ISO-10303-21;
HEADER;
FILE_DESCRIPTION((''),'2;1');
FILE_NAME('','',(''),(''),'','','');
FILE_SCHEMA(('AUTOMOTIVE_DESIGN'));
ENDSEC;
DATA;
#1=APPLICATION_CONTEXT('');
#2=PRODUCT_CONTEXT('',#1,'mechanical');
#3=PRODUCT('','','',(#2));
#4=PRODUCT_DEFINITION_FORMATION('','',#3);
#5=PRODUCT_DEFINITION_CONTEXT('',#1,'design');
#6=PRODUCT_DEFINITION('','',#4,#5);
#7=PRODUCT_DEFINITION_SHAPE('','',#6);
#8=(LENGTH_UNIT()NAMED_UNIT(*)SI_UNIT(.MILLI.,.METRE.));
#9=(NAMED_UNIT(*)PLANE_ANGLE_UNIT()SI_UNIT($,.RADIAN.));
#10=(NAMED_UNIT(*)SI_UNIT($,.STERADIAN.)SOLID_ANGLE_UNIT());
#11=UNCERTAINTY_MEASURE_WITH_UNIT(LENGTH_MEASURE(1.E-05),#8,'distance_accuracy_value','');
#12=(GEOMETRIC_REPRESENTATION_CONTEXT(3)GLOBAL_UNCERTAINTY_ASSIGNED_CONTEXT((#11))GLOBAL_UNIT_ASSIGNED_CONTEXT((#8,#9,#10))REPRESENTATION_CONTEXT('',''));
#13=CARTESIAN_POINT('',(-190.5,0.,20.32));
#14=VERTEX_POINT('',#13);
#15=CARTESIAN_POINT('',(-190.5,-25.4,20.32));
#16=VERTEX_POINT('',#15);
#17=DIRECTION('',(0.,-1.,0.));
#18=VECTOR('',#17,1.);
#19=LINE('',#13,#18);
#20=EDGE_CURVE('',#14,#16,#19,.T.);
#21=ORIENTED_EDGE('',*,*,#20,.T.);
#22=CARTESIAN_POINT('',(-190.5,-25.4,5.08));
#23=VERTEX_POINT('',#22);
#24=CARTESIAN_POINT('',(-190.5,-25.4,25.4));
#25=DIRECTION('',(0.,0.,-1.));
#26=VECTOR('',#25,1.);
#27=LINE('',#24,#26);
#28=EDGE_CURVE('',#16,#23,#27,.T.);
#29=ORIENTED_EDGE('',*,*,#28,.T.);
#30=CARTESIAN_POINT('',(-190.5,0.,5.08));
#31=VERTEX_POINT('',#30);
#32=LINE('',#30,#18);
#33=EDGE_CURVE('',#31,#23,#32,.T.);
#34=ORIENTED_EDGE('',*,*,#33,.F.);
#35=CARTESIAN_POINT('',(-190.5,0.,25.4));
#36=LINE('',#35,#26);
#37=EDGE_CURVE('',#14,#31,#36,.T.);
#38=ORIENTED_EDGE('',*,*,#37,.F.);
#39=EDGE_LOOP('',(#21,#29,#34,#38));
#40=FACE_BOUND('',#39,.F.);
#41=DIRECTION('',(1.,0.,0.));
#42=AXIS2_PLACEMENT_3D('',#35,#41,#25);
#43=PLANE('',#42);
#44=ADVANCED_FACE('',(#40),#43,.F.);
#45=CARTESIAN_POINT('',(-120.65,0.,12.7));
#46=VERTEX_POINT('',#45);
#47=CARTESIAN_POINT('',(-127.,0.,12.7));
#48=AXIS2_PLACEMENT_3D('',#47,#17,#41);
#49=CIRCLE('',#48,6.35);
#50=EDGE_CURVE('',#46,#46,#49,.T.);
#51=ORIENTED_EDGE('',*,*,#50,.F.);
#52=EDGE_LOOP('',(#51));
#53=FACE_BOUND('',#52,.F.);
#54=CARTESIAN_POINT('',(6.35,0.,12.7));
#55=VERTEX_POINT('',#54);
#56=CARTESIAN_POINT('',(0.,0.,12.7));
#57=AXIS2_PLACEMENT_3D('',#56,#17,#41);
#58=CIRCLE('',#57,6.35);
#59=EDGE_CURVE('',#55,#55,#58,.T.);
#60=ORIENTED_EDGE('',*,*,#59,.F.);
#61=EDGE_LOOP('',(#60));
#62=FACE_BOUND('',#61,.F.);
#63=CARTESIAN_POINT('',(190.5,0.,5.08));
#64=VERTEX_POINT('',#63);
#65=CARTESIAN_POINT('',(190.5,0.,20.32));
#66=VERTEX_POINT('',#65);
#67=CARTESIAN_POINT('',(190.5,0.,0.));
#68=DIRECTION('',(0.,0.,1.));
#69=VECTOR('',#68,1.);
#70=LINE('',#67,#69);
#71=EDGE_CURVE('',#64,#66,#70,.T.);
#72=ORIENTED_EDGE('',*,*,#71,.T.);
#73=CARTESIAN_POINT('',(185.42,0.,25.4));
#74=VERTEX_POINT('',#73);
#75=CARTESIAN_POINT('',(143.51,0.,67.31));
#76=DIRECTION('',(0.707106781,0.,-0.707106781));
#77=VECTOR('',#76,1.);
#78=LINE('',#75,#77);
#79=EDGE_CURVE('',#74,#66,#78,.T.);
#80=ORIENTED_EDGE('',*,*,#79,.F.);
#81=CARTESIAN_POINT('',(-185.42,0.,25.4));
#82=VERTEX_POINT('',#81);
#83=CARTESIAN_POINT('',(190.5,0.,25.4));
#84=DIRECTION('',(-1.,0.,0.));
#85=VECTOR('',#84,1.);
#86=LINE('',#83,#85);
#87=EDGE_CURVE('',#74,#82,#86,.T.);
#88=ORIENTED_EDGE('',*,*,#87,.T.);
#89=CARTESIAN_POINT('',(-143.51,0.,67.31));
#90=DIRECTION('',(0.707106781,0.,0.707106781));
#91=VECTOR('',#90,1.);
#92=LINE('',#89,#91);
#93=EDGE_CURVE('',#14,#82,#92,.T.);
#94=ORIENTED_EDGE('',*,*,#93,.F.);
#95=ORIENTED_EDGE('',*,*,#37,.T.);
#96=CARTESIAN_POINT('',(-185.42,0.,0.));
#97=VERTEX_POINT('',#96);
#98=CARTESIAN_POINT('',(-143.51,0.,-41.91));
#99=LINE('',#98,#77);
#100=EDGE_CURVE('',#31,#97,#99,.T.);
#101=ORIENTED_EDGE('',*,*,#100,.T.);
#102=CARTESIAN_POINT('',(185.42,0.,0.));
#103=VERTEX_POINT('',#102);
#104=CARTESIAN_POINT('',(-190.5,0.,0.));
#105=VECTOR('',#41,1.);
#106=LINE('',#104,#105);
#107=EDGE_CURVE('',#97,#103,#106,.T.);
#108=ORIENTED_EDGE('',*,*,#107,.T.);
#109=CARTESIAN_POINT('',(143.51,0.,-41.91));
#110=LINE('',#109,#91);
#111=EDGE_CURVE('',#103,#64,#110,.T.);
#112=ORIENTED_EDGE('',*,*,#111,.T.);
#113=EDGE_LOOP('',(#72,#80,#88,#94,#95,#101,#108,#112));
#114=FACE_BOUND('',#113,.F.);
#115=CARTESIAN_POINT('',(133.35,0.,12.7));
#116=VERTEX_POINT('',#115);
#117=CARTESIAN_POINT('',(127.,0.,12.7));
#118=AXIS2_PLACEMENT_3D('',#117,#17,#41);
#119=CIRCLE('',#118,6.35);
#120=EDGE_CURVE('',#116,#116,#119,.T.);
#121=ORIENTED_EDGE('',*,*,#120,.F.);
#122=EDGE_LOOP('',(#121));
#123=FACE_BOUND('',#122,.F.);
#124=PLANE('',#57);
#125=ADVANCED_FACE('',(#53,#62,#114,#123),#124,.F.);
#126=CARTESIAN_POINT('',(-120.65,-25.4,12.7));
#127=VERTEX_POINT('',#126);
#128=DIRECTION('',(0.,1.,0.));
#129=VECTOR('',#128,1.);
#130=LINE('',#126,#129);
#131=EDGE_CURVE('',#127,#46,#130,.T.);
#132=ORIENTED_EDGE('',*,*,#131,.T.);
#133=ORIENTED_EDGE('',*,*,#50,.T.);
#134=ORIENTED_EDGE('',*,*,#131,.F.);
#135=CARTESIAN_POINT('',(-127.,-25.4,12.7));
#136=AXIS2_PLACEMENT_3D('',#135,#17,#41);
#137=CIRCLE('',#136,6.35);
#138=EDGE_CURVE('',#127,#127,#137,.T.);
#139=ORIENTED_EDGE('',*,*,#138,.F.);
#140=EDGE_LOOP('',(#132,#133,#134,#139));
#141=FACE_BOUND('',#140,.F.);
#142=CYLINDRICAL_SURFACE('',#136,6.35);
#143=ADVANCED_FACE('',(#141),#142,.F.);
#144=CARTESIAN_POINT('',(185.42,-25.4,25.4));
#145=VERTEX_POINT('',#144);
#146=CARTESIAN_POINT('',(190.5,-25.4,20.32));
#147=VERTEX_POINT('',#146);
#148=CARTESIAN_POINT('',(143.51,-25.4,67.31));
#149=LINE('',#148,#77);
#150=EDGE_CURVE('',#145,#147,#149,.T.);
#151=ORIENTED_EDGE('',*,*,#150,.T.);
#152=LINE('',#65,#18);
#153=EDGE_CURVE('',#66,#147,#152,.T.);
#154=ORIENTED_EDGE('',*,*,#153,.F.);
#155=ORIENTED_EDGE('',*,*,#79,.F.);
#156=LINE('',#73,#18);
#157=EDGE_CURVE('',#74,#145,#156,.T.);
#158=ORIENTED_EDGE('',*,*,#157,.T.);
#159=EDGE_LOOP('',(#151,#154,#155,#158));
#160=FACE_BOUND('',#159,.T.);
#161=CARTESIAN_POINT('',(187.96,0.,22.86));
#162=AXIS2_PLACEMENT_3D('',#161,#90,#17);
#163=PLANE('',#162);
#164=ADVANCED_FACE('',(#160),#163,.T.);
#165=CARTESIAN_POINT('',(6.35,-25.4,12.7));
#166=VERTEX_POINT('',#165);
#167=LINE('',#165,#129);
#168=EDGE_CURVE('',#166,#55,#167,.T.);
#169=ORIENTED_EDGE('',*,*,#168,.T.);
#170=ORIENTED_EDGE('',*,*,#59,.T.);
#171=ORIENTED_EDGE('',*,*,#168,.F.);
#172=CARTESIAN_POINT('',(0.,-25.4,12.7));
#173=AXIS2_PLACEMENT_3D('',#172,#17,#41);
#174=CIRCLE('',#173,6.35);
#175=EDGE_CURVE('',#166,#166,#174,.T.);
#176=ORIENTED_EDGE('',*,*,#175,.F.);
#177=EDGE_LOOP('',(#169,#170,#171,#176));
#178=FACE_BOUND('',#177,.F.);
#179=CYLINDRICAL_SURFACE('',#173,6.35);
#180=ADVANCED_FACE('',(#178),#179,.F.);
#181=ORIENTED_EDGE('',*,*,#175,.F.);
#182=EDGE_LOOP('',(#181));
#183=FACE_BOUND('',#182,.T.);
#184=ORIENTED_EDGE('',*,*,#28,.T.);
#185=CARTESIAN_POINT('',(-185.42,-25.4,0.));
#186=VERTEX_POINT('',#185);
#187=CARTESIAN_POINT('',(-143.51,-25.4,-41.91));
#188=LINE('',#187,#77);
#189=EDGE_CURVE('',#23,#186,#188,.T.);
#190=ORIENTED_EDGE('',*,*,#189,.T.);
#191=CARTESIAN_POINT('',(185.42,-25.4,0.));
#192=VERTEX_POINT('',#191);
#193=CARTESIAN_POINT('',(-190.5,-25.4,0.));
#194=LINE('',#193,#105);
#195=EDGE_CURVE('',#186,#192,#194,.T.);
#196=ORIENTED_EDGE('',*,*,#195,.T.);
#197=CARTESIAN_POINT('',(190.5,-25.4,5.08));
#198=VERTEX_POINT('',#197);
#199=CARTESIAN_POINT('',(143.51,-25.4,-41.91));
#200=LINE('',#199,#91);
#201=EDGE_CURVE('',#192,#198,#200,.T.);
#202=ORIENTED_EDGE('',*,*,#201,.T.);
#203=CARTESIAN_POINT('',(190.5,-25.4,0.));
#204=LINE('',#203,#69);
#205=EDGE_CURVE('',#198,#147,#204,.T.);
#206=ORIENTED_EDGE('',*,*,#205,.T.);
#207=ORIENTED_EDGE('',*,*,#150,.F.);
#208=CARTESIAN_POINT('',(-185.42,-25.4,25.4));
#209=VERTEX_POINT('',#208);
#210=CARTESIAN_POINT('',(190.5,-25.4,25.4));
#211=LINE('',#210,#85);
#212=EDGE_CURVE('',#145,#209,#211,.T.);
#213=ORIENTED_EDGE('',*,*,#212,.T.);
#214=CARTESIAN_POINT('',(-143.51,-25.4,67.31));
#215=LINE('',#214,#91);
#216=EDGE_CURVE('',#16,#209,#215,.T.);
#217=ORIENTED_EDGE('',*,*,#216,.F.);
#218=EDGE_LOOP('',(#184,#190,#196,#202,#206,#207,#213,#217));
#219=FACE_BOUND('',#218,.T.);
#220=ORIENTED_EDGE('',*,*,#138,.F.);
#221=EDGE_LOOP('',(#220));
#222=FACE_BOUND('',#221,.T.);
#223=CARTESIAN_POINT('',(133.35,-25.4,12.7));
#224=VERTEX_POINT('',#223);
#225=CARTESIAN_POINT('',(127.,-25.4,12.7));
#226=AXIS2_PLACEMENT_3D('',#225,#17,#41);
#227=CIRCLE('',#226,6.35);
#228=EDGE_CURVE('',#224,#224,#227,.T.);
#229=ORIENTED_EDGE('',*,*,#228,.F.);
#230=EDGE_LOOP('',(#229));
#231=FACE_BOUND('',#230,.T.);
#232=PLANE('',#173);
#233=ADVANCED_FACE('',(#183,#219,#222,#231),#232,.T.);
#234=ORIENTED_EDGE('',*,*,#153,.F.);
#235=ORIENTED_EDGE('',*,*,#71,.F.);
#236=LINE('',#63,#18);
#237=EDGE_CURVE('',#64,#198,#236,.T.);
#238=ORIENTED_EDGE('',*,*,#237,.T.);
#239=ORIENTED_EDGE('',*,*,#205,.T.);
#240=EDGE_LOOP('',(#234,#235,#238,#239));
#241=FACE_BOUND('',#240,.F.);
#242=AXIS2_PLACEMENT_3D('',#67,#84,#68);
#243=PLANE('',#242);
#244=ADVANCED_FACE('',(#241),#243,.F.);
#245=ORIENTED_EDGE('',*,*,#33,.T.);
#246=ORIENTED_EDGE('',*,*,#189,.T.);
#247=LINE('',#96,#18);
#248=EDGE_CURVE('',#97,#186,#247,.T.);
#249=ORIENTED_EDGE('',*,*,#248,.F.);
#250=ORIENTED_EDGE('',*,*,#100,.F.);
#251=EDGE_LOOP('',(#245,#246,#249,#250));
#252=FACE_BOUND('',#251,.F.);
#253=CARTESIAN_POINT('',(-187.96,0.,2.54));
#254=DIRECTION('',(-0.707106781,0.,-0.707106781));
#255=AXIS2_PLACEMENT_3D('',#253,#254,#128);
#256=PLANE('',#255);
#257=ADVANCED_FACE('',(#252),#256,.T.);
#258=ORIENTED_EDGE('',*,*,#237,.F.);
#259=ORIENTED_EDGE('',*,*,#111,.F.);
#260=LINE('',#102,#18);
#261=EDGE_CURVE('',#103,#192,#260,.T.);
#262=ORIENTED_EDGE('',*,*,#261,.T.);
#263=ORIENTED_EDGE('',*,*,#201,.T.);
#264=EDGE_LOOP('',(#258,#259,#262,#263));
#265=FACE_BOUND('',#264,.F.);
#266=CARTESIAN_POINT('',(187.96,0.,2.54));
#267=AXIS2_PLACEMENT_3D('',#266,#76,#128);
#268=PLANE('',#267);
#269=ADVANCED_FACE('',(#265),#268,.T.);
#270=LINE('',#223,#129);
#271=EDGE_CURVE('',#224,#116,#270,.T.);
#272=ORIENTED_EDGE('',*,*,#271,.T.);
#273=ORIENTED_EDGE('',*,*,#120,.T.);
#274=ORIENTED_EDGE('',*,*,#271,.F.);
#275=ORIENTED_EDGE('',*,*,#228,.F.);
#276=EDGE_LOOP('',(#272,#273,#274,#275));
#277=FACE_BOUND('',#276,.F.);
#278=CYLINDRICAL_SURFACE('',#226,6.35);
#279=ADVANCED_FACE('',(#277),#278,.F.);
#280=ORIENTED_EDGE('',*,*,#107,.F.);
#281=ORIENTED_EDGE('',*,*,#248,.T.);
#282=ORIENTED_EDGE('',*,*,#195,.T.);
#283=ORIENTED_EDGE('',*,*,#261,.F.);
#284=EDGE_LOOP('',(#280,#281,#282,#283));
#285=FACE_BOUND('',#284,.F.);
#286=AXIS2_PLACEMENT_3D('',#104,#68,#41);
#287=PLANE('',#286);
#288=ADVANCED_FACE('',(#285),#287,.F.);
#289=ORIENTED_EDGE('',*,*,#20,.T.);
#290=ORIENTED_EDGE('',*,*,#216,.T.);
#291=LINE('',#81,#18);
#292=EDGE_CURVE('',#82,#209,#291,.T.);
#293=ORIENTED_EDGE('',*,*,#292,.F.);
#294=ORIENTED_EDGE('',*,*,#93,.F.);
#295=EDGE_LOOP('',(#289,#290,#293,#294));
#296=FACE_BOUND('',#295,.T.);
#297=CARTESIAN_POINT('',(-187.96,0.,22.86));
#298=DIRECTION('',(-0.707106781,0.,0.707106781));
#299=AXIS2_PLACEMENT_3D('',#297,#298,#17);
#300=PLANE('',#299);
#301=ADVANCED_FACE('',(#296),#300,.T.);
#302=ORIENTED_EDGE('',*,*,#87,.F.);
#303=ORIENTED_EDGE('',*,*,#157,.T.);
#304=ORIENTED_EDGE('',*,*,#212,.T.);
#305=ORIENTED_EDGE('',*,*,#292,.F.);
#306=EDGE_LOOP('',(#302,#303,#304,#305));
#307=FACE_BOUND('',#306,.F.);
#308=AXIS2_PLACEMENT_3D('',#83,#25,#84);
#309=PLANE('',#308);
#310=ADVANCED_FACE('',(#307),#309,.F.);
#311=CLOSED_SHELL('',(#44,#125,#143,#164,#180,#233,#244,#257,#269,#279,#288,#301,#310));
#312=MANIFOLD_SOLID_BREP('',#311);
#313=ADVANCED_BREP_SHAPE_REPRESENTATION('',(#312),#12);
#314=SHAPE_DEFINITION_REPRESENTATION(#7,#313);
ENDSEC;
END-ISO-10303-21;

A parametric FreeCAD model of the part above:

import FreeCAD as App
import Part
import Sketcher
Q = App.Units.Quantity


def edges_at(feature, points):
    """Names of the edges that pass closest to the given points."""
    edges = feature.Shape.Edges
    near = lambda p: min(range(len(edges)), key=lambda i: edges[i].distToShape(Part.Vertex(*p))[0])
    return sorted({f"Edge{near(p) + 1}" for p in points})


def add_polygon(sketch, points):
    """Adds a closed chain of lines whose ends are joined by coincident constraints."""
    first, n = sketch.GeometryCount, len(points)
    for a, b in zip(points, points[1:] + points[:1]):
        sketch.addGeometry(Part.LineSegment(App.Vector(*a, 0), App.Vector(*b, 0)), False)
    for i in range(n):
        sketch.addConstraint(Sketcher.Constraint("Coincident", first + i, 2, first + (i + 1) % n, 1))

doc = App.newDocument("Part")
body = doc.addObject("PartDesign::Body", "Body")

# Sketch on XZ plane
sketch1 = body.newObject("Sketcher::SketchObject", "Sketch")
sketch1.AttachmentSupport = (doc.getObject("XZ_Plane"), [""])
sketch1.MapMode = "FlatFace"
add_polygon(sketch1, [(-190, 0), (190, 0), (190, 25), (-190, 25)])  # lines 0-3
sketch1.addConstraint(Sketcher.Constraint("Horizontal", 0))
sketch1.addConstraint(Sketcher.Constraint("Vertical", 1))
sketch1.addConstraint(Sketcher.Constraint("Horizontal", 2))
sketch1.addConstraint(Sketcher.Constraint("Vertical", 3))
sketch1.addConstraint(Sketcher.Constraint("Symmetric", 0, 2, 3, 2, -1, 1))
sketch1.addConstraint(Sketcher.Constraint("DistanceX", 0, 1, 0, 2, Q("15 in")))
sketch1.addConstraint(Sketcher.Constraint("DistanceY", 1, 1, 1, 2, Q("1 in")))
pad1 = body.newObject("PartDesign::Pad", "Pad")
pad1.Profile = sketch1
pad1.Length = Q("1 in")

# Sketch on XZ plane
sketch2 = body.newObject("Sketcher::SketchObject", "Sketch001")
sketch2.AttachmentSupport = (doc.getObject("XZ_Plane"), [""])
sketch2.MapMode = "FlatFace"
sketch2.AttachmentOffset = App.Placement(App.Vector(0, 0, 1 * 25.4), App.Rotation())
sketch2.addGeometry(Part.Circle(App.Vector(-127, 13, 0), App.Vector(0, 0, 1), 6), False)
sketch2.addGeometry(Part.Circle(App.Vector(0, 13, 0), App.Vector(0, 0, 1), 6), False)
sketch2.addGeometry(Part.Circle(App.Vector(127, 13, 0), App.Vector(0, 0, 1), 6), False)
sketch2.addConstraint(Sketcher.Constraint("Equal", 0, 1))
sketch2.addConstraint(Sketcher.Constraint("Equal", 1, 2))
sketch2.addConstraint(Sketcher.Constraint("Symmetric", 0, 3, 2, 3, -2))
sketch2.addConstraint(Sketcher.Constraint("PointOnObject", 1, 3, -2))
sketch2.addConstraint(Sketcher.Constraint("Horizontal", 0, 3, 1, 3))
sketch2.addConstraint(Sketcher.Constraint("Diameter", 0, Q("0.5 in")))
sketch2.addConstraint(Sketcher.Constraint("DistanceX", 0, 3, -1, 1, Q("5 in")))
sketch2.addConstraint(Sketcher.Constraint("DistanceY", -1, 1, 0, 3, Q("0.5 in")))
pocket1 = body.newObject("PartDesign::Pocket", "Pocket")
pocket1.Profile = sketch2
pocket1.Length = Q("2 in")
doc.recompute()

chamfer = body.newObject("PartDesign::Chamfer", "Chamfer")
chamfer.Base = (pocket1, edges_at(pocket1, [(-190.5, -12.7, 25.4)]))
chamfer.Size = Q("0.2 in")
doc.recompute()

chamfer2 = body.newObject("PartDesign::Chamfer", "Chamfer001")
chamfer2.Base = (chamfer, edges_at(chamfer, [(-190.5, -12.7, 0), (190.5, -12.7, 25.4), (190.5, -12.7, 0)]))
chamfer2.Size = Q("0.2 in")

doc.recompute()
